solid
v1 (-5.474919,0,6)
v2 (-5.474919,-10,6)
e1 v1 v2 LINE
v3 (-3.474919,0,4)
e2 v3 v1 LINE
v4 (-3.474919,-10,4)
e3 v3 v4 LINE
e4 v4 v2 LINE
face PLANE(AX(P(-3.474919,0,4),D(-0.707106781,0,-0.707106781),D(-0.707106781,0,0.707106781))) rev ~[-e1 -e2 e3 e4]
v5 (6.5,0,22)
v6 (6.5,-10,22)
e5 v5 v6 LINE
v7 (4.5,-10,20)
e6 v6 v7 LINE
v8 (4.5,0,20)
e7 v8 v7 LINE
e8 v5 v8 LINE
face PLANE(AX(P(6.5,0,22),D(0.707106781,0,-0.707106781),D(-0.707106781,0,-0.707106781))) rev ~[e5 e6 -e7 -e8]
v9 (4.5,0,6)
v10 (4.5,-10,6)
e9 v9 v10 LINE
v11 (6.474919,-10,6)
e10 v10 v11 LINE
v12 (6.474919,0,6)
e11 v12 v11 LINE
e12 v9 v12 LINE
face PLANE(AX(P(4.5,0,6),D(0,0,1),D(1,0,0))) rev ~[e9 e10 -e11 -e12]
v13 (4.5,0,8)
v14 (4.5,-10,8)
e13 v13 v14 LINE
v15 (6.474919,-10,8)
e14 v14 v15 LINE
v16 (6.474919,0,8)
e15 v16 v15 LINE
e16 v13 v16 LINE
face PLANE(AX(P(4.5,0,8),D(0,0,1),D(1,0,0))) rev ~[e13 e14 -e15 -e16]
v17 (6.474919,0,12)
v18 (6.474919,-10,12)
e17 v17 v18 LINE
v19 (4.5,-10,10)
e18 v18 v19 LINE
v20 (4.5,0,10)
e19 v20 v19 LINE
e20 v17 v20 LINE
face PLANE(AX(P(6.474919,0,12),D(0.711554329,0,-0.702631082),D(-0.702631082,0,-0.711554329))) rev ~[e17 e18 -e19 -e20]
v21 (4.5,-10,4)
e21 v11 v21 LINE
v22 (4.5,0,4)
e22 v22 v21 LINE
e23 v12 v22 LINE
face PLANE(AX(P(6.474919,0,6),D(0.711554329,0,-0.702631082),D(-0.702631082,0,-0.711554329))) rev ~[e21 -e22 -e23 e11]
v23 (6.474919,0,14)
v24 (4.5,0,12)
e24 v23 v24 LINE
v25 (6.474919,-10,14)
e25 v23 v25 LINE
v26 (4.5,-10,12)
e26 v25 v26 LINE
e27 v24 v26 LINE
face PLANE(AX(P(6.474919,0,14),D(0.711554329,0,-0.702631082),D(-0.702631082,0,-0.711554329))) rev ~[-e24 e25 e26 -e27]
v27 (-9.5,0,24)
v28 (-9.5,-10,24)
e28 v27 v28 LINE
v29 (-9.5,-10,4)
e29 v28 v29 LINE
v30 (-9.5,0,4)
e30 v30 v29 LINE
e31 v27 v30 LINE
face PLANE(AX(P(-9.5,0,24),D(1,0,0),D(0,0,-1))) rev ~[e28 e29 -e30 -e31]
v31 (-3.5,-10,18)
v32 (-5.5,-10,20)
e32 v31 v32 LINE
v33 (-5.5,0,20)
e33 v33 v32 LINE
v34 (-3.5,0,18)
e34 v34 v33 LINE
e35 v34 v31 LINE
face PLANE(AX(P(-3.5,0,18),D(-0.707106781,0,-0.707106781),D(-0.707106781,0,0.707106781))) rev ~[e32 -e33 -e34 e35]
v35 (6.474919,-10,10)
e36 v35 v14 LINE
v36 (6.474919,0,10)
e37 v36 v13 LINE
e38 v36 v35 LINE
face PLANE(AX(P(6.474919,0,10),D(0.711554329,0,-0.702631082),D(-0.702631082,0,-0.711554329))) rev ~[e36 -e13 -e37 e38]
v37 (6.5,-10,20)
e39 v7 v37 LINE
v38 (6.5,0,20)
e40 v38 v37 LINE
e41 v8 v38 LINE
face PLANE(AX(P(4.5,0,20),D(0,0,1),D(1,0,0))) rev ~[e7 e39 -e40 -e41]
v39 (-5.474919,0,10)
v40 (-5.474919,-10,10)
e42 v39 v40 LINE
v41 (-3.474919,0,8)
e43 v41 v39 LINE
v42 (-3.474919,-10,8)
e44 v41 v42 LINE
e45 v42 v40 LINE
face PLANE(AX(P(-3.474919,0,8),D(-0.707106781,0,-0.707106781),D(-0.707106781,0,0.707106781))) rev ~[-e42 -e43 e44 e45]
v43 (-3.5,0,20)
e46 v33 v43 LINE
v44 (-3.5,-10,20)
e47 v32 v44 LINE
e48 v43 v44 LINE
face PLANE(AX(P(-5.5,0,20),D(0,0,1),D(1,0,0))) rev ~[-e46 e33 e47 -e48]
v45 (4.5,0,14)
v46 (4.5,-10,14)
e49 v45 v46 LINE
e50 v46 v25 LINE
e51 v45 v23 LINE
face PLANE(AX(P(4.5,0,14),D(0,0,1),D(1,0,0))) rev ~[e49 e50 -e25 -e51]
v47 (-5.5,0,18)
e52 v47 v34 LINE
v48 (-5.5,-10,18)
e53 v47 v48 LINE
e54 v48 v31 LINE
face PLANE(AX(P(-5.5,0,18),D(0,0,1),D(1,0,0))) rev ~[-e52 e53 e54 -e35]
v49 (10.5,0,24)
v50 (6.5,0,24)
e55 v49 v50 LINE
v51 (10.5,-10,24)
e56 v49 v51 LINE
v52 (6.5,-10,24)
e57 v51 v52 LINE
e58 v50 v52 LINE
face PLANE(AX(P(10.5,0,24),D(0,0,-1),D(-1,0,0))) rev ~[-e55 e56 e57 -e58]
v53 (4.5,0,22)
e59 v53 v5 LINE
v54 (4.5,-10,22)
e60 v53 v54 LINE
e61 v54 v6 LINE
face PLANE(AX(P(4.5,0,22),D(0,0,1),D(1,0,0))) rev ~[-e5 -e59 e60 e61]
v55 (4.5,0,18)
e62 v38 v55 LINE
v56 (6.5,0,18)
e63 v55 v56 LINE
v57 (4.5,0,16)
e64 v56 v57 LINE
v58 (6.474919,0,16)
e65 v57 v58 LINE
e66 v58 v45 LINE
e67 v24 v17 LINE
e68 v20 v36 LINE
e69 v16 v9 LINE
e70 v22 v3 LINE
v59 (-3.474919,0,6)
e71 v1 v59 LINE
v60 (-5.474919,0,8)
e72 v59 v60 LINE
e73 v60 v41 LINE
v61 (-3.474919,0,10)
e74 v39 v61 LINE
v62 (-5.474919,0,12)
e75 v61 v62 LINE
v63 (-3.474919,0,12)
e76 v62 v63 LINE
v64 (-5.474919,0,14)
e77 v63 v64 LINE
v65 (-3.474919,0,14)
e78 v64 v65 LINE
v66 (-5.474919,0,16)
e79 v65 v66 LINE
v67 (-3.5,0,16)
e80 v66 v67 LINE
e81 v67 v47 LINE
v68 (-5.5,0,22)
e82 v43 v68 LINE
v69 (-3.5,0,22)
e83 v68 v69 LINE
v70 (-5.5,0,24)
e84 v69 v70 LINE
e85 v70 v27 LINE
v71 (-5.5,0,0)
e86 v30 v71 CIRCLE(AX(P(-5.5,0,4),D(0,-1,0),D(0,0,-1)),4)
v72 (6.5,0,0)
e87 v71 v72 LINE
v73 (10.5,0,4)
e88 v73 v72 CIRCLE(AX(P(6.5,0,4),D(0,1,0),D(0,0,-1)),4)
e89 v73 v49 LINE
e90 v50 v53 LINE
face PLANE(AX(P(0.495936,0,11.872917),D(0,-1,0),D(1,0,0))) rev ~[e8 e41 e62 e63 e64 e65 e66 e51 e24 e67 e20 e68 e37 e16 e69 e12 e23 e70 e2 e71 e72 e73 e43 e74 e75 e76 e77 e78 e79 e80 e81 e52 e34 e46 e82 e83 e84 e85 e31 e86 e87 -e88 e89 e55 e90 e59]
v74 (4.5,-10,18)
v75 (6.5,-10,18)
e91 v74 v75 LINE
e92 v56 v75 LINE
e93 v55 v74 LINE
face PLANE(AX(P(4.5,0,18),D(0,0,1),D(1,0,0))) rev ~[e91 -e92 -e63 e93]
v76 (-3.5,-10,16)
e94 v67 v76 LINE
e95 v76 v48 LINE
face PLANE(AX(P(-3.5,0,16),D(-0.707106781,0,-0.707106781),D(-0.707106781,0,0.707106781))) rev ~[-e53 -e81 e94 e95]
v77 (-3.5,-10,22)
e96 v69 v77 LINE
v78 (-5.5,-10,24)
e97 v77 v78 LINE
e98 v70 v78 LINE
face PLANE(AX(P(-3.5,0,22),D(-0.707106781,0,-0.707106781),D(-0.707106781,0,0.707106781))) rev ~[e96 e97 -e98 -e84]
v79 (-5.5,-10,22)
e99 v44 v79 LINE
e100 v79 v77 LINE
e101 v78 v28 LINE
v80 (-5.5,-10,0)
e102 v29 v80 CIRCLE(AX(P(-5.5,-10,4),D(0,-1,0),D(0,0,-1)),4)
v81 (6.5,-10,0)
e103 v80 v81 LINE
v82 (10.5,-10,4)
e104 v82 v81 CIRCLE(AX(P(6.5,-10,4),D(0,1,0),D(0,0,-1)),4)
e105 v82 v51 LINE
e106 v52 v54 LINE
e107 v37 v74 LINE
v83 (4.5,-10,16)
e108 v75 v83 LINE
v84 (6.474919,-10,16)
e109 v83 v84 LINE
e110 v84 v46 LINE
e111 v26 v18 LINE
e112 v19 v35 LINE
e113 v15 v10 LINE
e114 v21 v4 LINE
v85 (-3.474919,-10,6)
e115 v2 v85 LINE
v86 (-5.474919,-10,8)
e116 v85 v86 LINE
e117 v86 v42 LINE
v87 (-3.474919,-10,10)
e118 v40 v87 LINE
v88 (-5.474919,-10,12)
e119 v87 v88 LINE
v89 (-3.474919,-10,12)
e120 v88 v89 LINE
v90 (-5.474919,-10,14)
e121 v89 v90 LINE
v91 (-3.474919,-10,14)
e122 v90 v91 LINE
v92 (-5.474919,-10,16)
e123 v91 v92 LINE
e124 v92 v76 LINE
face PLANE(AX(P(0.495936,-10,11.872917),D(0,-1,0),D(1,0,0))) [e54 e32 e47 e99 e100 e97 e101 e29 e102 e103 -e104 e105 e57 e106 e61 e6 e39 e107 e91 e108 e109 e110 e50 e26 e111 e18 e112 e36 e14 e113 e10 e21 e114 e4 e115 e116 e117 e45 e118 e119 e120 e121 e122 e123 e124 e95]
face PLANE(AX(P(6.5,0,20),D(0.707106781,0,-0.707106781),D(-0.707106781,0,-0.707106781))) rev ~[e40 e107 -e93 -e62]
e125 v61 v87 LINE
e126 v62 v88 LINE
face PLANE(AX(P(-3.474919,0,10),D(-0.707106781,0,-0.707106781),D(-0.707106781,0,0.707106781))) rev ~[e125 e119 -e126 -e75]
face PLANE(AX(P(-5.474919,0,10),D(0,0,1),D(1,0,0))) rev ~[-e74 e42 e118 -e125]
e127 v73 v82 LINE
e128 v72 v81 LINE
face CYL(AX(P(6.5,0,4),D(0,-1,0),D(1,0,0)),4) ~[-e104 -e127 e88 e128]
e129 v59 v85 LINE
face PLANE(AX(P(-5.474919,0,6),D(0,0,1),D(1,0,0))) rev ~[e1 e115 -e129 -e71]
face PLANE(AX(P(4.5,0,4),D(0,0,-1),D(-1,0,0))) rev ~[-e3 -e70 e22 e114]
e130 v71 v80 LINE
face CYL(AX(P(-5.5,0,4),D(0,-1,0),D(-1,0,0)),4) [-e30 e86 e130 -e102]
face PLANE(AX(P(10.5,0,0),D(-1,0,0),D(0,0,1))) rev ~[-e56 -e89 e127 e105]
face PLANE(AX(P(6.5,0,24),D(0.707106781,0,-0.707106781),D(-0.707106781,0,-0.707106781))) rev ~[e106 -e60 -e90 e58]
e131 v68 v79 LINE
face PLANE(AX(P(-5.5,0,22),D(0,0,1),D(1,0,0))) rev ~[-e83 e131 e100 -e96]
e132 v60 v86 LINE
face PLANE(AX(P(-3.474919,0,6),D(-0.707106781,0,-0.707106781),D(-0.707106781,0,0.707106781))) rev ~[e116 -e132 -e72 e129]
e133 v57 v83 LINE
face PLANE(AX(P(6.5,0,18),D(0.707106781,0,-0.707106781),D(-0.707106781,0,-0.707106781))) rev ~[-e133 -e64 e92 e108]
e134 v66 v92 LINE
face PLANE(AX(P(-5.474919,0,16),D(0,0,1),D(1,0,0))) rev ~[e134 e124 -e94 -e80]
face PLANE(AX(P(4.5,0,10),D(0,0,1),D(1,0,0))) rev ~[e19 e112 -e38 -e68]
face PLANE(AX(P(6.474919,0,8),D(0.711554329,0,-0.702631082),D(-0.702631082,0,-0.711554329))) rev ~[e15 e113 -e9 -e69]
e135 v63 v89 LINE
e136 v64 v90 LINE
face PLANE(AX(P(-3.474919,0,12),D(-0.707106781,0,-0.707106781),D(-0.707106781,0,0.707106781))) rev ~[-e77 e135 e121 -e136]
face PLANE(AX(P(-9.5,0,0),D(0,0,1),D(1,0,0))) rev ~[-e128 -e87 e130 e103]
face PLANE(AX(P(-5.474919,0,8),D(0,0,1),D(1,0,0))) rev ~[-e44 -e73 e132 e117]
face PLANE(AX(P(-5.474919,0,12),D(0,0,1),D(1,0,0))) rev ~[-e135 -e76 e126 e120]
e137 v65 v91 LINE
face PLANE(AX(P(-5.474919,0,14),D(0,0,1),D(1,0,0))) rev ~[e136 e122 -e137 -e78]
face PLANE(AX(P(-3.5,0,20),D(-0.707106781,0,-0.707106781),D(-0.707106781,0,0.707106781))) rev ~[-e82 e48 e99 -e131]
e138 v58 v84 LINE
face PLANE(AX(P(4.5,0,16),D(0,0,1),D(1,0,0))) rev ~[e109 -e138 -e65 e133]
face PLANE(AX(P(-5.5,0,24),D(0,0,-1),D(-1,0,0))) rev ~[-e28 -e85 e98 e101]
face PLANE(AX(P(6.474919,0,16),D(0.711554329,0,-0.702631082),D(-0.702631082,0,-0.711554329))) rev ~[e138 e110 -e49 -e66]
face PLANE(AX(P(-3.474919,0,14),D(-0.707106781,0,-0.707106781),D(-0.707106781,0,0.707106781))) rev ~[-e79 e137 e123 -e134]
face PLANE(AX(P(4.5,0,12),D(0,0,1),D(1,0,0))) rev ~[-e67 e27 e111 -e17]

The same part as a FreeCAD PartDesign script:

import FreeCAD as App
import Part
import Sketcher
from FreeCAD import Vector


def edges_at(feature, points):
    """Names of the edges that pass closest to the given points."""
    edges = feature.Shape.Edges
    near = lambda p: min(range(len(edges)), key=lambda i: edges[i].distToShape(Part.Vertex(*p))[0])
    return sorted({f"Edge{near(p) + 1}" for p in points})


def add_polygon(sketch, points):
    """Adds a closed chain of lines whose ends are joined by coincident constraints."""
    first, n = sketch.GeometryCount, len(points)
    for a, b in zip(points, points[1:] + points[:1]):
        sketch.addGeometry(Part.LineSegment(App.Vector(*a, 0), App.Vector(*b, 0)), False)
    for i in range(n):
        sketch.addConstraint(Sketcher.Constraint("Coincident", first + i, 2, first + (i + 1) % n, 1))

doc = App.newDocument("Part")
body = doc.addObject("PartDesign::Body", "Body")

sketch1 = body.newObject("Sketcher::SketchObject", "Sketch")
sketch1.AttachmentSupport = (doc.getObject("XZ_Plane"), [""])
sketch1.MapMode = "FlatFace"
add_polygon(sketch1, [(10.5, 0), (10.5, 24), (6.5, 24), (4.5, 22), (6.5, 22), (4.5, 20), (6.5, 20), (4.5, 18), (6.5, 18), (4.5, 16), (6.5, 16), (4.5, 14), (6.5, 14), (4.5, 12), (6.5, 12), (4.5, 10), (6.5, 10), (4.5, 8), (6.5, 8), (4.5, 6), (6.5, 6), (4.5, 4), (-3.5, 4), (-5.5, 6), (-3.5, 6), (-5.5, 8), (-3.5, 8), (-5.5, 10), (-3.5, 10), (-5.5, 12), (-3.5, 12), (-5.5, 14), (-3.5, 14), (-5.5, 16), (-3.5, 16), (-5.5, 18), (-3.5, 18), (-5.5, 20), (-3.5, 20), (-5.5, 22), (-3.5, 22), (-5.5, 24), (-9.5, 24), (-9.5, 0)])
sketch1.addConstraint([
    Sketcher.Constraint("Vertical", 0),
    Sketcher.Constraint("Horizontal", 1),
    Sketcher.Constraint("Horizontal", 3),
    Sketcher.Constraint("Horizontal", 5),
    Sketcher.Constraint("Horizontal", 7),
    Sketcher.Constraint("Horizontal", 9),
    Sketcher.Constraint("Horizontal", 11),
    Sketcher.Constraint("Horizontal", 13),
    Sketcher.Constraint("Horizontal", 15),
    Sketcher.Constraint("Horizontal", 17),
    Sketcher.Constraint("Horizontal", 19),
    Sketcher.Constraint("Horizontal", 21),
    Sketcher.Constraint("Horizontal", 23),
    Sketcher.Constraint("Horizontal", 25),
    Sketcher.Constraint("Horizontal", 27),
    Sketcher.Constraint("Horizontal", 29),
    Sketcher.Constraint("Horizontal", 31),
    Sketcher.Constraint("Horizontal", 33),
    Sketcher.Constraint("Horizontal", 35),
    Sketcher.Constraint("Horizontal", 37),
    Sketcher.Constraint("Horizontal", 39),
    Sketcher.Constraint("Horizontal", 41),
    Sketcher.Constraint("Vertical", 42),
    Sketcher.Constraint("Horizontal", 43),
    Sketcher.Constraint("PointOnObject", 42, 2, -1),
    Sketcher.Constraint("Parallel", 2, 4),
    Sketcher.Constraint("Parallel", 4, 6),
    Sketcher.Constraint("Parallel", 6, 8),
    Sketcher.Constraint("Parallel", 10, 12),
    Sketcher.Constraint("Parallel", 12, 14),
    Sketcher.Constraint("Parallel", 14, 16),
    Sketcher.Constraint("Parallel", 16, 18),
    Sketcher.Constraint("Parallel", 18, 20),
    Sketcher.Constraint("Perpendicular", 8, 22),
    Sketcher.Constraint("Parallel", 22, 24),
    Sketcher.Constraint("Parallel", 24, 26),
    Sketcher.Constraint("Parallel", 26, 28),
    Sketcher.Constraint("Parallel", 28, 30),
    Sketcher.Constraint("Parallel", 30, 32),
    Sketcher.Constraint("Parallel", 32, 34),
    Sketcher.Constraint("Parallel", 34, 36),
    Sketcher.Constraint("Parallel", 36, 38),
    Sketcher.Constraint("Parallel", 38, 40),
    Sketcher.Constraint("Horizontal", 19, 2, 22, 2),
    Sketcher.Constraint("Horizontal", 17, 2, 24, 2),
    Sketcher.Constraint("Horizontal", 15, 2, 26, 2),
    Sketcher.Constraint("Horizontal", 13, 2, 28, 2),
    Sketcher.Constraint("Horizontal", 11, 2, 30, 2),
    Sketcher.Constraint("Horizontal", 9, 2, 32, 2),
    Sketcher.Constraint("Horizontal", 7, 2, 34, 2),
    Sketcher.Constraint("Horizontal", 5, 2, 36, 2),
    Sketcher.Constraint("Horizontal", 3, 2, 38, 2),
    Sketcher.Constraint("Horizontal", 1, 2, 40, 2),
    Sketcher.Constraint("Vertical", 1, 2, 3, 2),
    Sketcher.Constraint("Vertical", 2, 2, 4, 2),
    Sketcher.Constraint("Vertical", 3, 2, 5, 2),
    Sketcher.Constraint("Vertical", 4, 2, 6, 2),
    Sketcher.Constraint("Vertical", 5, 2, 7, 2),
    Sketcher.Constraint("Vertical", 6, 2, 8, 2),
    Sketcher.Constraint("Vertical", 8, 2, 10, 2),
    Sketcher.Constraint("Vertical", 9, 2, 11, 2),
    Sketcher.Constraint("Vertical", 10, 2, 12, 2),
    Sketcher.Constraint("Vertical", 11, 2, 13, 2),
    Sketcher.Constraint("Vertical", 12, 2, 14, 2),
    Sketcher.Constraint("Vertical", 13, 2, 15, 2),
    Sketcher.Constraint("Vertical", 14, 2, 16, 2),
    Sketcher.Constraint("Vertical", 15, 2, 17, 2),
    Sketcher.Constraint("Vertical", 16, 2, 18, 2),
    Sketcher.Constraint("Vertical", 17, 2, 19, 2),
    Sketcher.Constraint("Vertical", 18, 2, 20, 2),
    Sketcher.Constraint("Vertical", 21, 2, 23, 2),
    Sketcher.Constraint("Vertical", 23, 2, 25, 2),
    Sketcher.Constraint("Vertical", 25, 2, 27, 2),
    Sketcher.Constraint("Vertical", 27, 2, 29, 2),
    Sketcher.Constraint("Vertical", 29, 2, 31, 2),
    Sketcher.Constraint("Vertical", 33, 2, 35, 2),
    Sketcher.Constraint("Vertical", 35, 2, 37, 2),
    Sketcher.Constraint("Vertical", 37, 2, 39, 2),
    Sketcher.Constraint("Equal", 7, 23),
    Sketcher.Constraint("Equal", 19, 33),
    Sketcher.Constraint("Equal", 31, 35),
    Sketcher.Constraint("Equal", 1, 41),
    Sketcher.Constraint("DistanceX", 1, 2, 1, 1, 4.0),
    Sketcher.Constraint("DistanceX", 3, 1, 3, 2, 2.0),
    Sketcher.Constraint("DistanceX", 43, 1, 43, 2, 20.0),
    Sketcher.Constraint("DistanceY", 0, 1, 0, 2, 24.0),
    Sketcher.Constraint("DistanceX", -1, 1, 0, 2, 10.5),
    Sketcher.Constraint("DistanceX", 9, 1, 9, 2, 1.974919),
])
pad1 = body.newObject("PartDesign::Pad", "Pad")
pad1.Profile = sketch1
pad1.Length = 10
doc.recompute()

fillet = body.newObject("PartDesign::Fillet", "Fillet")
fillet.Base = (pad1, edges_at(pad1, [(-9.5, -5, 0), (10.5, -5, 0)]))
fillet.Radius = 4

doc.recompute()
